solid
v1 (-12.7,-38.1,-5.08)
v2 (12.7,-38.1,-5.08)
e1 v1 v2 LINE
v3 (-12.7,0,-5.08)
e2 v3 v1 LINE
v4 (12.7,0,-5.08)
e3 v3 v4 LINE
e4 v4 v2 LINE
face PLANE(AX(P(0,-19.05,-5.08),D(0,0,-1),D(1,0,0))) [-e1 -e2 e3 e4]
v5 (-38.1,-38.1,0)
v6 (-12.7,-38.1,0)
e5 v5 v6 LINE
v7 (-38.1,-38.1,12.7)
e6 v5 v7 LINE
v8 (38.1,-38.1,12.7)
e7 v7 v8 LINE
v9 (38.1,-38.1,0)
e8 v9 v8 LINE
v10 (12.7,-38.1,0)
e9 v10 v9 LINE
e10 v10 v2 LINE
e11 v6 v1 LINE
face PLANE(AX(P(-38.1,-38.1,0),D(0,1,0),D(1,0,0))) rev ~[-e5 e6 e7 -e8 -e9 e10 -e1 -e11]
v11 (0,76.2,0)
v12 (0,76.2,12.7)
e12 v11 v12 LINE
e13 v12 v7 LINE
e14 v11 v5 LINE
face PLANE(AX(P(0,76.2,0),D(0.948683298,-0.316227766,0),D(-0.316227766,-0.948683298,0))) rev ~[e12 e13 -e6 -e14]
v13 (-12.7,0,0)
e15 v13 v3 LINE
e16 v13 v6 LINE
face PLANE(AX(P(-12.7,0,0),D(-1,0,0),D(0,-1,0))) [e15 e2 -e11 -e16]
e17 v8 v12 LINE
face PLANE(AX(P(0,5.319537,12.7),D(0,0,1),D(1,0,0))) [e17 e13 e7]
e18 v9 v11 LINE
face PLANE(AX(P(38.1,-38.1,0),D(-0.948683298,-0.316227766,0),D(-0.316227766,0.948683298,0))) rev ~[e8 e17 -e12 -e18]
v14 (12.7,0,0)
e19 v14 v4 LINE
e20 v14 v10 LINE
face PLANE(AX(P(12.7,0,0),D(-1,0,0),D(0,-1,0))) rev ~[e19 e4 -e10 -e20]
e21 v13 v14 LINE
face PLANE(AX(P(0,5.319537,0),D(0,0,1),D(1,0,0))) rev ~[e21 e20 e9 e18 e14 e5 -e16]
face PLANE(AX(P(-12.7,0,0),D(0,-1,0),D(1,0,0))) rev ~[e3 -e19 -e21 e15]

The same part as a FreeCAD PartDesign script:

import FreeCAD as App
import Part
import Sketcher

V = App.Vector
Q = App.Units.Quantity

doc = App.newDocument("Part")
body = doc.addObject("PartDesign::Body", "Body")

# Sketch on XY plane
sketch1 = body.newObject("Sketcher::SketchObject", "Sketch")
sketch1.AttachmentSupport = (doc.getObject("XY_Plane"), [""])
sketch1.MapMode = "FlatFace"
sketch1.addGeometry(Part.LineSegment(V(0, 76.2, 0), V(-38.1, -38.1, 0)), False)
sketch1.addGeometry(Part.LineSegment(V(-38.1, -38.1, 0), V(38.1, -38.1, 0)), False)
sketch1.addGeometry(Part.LineSegment(V(38.1, -38.1, 0), V(0, 76.2, 0)), False)
sketch1.addConstraint(Sketcher.Constraint("Coincident", 0, 2, 1, 1))
sketch1.addConstraint(Sketcher.Constraint("Coincident", 1, 2, 2, 1))
sketch1.addConstraint(Sketcher.Constraint("Coincident", 2, 2, 0, 1))
sketch1.addConstraint(Sketcher.Constraint("Horizontal", 1))
sketch1.addConstraint(Sketcher.Constraint("PointOnObject", 2, 2, -2))
sketch1.addConstraint(Sketcher.Constraint("Equal", 0, 2))
sketch1.addConstraint(Sketcher.Constraint("DistanceX", 1, 1, 1, 2, Q("3 in")))
sketch1.addConstraint(Sketcher.Constraint("DistanceY", -1, 1, 2, 2, Q("3 in")))
sketch1.addConstraint(Sketcher.Constraint("DistanceY", 0, 2, -1, 1, Q("1.5 in")))
pad1 = body.newObject("PartDesign::Pad", "Pad")
pad1.Profile = sketch1
pad1.Length = Q("0.5 in")

# Sketch on XY plane
sketch2 = body.newObject("Sketcher::SketchObject", "Sketch001")
sketch2.AttachmentSupport = (doc.getObject("XY_Plane"), [""])
sketch2.MapMode = "FlatFace"
sketch2.addGeometry(Part.LineSegment(V(-12.7, -38.1, 0), V(-12.7, 0, 0)), False)
sketch2.addGeometry(Part.LineSegment(V(-12.7, 0, 0), V(12.7, 0, 0)), False)
sketch2.addGeometry(Part.LineSegment(V(12.7, 0, 0), V(12.7, -38.1, 0)), False)
sketch2.addGeometry(Part.LineSegment(V(12.7, -38.1, 0), V(-12.7, -38.1, 0)), False)
sketch2.addConstraint(Sketcher.Constraint("Coincident", 0, 2, 1, 1))
sketch2.addConstraint(Sketcher.Constraint("Coincident", 1, 2, 2, 1))
sketch2.addConstraint(Sketcher.Constraint("Coincident", 2, 2, 3, 1))
sketch2.addConstraint(Sketcher.Constraint("Coincident", 3, 2, 0, 1))
sketch2.addConstraint(Sketcher.Constraint("Vertical", 0))
sketch2.addConstraint(Sketcher.Constraint("Horizontal", 1))
sketch2.addConstraint(Sketcher.Constraint("Vertical", 2))
sketch2.addConstraint(Sketcher.Constraint("Horizontal", 3))
sketch2.addConstraint(Sketcher.Constraint("Symmetric", 0, 2, 1, 2, -1, 1))
sketch2.addConstraint(Sketcher.Constraint("DistanceX", 1, 1, 1, 2, Q("1 in")))
sketch2.addConstraint(Sketcher.Constraint("DistanceY", 0, 1, 0, 2, Q("1.5 in")))
pad2 = body.newObject("PartDesign::Pad", "Pad001")
pad2.Profile = sketch2
pad2.Length = Q("0.2 in")
pad2.Reversed = True

doc.recompute()
